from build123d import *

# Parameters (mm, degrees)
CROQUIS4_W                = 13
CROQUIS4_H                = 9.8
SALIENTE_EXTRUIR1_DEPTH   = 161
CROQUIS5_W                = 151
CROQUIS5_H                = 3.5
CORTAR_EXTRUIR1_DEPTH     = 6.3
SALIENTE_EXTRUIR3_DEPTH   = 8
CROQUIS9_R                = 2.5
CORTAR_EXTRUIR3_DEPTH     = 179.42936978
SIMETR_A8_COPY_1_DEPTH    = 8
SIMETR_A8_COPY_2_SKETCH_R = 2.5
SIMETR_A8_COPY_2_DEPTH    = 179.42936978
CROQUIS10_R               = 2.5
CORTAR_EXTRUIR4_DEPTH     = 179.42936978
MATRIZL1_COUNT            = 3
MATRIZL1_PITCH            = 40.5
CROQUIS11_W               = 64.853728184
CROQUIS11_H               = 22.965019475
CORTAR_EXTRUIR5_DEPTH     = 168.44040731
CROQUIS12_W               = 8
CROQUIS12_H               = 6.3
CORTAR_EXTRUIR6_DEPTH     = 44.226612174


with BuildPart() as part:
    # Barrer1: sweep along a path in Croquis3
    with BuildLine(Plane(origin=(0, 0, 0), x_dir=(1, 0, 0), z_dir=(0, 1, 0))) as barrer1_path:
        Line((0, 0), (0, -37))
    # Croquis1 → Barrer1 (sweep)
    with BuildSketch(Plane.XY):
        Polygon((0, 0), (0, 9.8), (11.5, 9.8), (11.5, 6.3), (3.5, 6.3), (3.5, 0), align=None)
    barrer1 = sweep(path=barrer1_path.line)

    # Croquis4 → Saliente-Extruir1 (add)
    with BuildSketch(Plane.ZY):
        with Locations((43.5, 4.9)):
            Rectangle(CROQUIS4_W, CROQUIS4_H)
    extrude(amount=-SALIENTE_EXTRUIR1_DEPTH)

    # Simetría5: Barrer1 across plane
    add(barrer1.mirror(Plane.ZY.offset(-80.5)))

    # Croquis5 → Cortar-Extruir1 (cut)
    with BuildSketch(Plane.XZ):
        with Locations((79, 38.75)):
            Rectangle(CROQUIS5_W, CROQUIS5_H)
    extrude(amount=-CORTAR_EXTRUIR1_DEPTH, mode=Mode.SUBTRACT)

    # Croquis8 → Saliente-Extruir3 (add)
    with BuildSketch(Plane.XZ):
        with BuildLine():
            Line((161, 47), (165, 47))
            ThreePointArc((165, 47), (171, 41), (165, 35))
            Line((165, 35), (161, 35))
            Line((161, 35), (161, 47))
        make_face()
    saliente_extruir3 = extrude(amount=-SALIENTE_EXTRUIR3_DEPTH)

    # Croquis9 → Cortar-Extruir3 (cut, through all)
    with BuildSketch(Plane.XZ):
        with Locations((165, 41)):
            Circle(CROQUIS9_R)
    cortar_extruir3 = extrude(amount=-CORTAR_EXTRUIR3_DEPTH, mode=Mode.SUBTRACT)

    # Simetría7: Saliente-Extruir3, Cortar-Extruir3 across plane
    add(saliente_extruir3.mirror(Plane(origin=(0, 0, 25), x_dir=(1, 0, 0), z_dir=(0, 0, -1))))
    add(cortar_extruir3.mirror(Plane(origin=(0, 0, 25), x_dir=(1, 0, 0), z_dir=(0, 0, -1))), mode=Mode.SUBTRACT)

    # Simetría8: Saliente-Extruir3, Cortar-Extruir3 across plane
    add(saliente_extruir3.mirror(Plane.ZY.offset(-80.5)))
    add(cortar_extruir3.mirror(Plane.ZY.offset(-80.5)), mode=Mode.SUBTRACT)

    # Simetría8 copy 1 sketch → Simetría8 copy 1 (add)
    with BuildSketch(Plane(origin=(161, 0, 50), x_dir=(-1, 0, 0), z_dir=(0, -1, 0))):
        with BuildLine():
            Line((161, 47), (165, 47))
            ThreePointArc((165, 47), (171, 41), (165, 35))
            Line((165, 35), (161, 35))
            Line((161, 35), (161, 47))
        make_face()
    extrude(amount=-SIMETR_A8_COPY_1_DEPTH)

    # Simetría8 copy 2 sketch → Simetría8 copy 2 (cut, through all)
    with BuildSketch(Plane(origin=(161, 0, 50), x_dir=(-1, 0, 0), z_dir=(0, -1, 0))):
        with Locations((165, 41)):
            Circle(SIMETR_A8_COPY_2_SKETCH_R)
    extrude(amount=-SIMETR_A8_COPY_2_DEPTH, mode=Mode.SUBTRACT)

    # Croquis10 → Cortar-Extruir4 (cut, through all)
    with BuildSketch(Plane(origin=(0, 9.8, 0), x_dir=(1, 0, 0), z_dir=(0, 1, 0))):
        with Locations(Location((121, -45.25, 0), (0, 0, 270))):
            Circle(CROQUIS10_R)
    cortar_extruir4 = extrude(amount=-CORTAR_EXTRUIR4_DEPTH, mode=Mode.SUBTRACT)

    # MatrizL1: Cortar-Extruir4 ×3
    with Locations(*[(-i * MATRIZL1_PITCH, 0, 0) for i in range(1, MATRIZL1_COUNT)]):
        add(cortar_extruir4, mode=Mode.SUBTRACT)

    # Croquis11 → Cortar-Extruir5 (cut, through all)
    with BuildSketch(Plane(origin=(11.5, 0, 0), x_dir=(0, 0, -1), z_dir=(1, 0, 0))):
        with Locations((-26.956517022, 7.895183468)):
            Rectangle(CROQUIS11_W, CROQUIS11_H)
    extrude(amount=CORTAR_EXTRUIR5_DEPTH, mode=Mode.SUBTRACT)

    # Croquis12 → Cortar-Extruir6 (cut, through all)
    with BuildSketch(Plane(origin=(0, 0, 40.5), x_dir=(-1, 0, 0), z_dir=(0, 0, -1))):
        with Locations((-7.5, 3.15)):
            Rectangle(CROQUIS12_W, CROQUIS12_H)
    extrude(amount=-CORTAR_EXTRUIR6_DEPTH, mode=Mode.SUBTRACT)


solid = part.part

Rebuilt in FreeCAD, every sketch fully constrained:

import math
import FreeCAD as App
import Part
import Sketcher

V = App.Vector


def add_polygon(sketch, points):
    """Adds a closed chain of lines whose ends are joined by coincident constraints."""
    first, n = sketch.GeometryCount, len(points)
    for a, b in zip(points, points[1:] + points[:1]):
        sketch.addGeometry(Part.LineSegment(App.Vector(*a, 0), App.Vector(*b, 0)), False)
    for i in range(n):
        sketch.addConstraint(Sketcher.Constraint("Coincident", first + i, 2, first + (i + 1) % n, 1))

doc = App.newDocument("Part")
body = doc.addObject("PartDesign::Body", "Body")

# Sketch on XY plane
sketch1 = doc.addObject("Sketcher::SketchObject", "Sketch")
body.addObject(sketch1)
sketch1.AttachmentSupport = (doc.XY_Plane, [""])
sketch1.MapMode = "FlatFace"
add_polygon(sketch1, [(0, 9.8), (0, 0), (3.5, 0), (3.5, 6.3), (11.5, 6.3), (11.5, 9.8)])  # lines 0-5
sketch1.addConstraint([
    Sketcher.Constraint("Vertical", 0),
    Sketcher.Constraint("Horizontal", 1),
    Sketcher.Constraint("Vertical", 2),
    Sketcher.Constraint("Horizontal", 3),
    Sketcher.Constraint("Vertical", 4),
    Sketcher.Constraint("Horizontal", 5),
    Sketcher.Constraint("Coincident", 0, 2, -1, 1),
    Sketcher.Constraint("Equal", 1, 4),
    Sketcher.Constraint("DistanceX", 3, 1, 3, 2, 8.0),
    Sketcher.Constraint("DistanceX", 1, 1, 1, 2, 3.5),
    Sketcher.Constraint("DistanceY", 0, 2, 0, 1, 9.8),
])

# Sketch on XZ plane
sketch2 = doc.addObject("Sketcher::SketchObject", "Sketch001")
body.addObject(sketch2)
sketch2.AttachmentSupport = (doc.XZ_Plane, [""])
sketch2.MapMode = "FlatFace"
sketch2.addGeometry(Part.LineSegment(V(0, 0, 0), V(0, 37, 0)), False)
sketch2.addConstraint([
    Sketcher.Constraint("Vertical", 0),
    Sketcher.Constraint("Coincident", 0, 1, -1, 1),
    Sketcher.Constraint("DistanceY", 0, 1, 0, 2, 37.0),
])
doc.recompute()

additivepipe = doc.addObject("PartDesign::AdditivePipe", "AdditivePipe")
body.addObject(additivepipe)
additivepipe.Profile = sketch1
additivepipe.Spine = (sketch2, ["Edge1"])

# Sketch on YZ plane
sketch3 = doc.addObject("Sketcher::SketchObject", "Sketch002")
body.addObject(sketch3)
sketch3.AttachmentSupport = (doc.YZ_Plane, [""])
sketch3.MapMode = "FlatFace"
add_polygon(sketch3, [(10, 37), (0, 37), (0, 50), (10, 50)])  # lines 0-3
sketch3.addConstraint([
    Sketcher.Constraint("Horizontal", 0),
    Sketcher.Constraint("Vertical", 1),
    Sketcher.Constraint("Horizontal", 2),
    Sketcher.Constraint("Vertical", 3),
    Sketcher.Constraint("PointOnObject", 0, 2, -2),
    Sketcher.Constraint("DistanceY", 1, 1, 1, 2, 13.0),
    Sketcher.Constraint("DistanceX", 0, 2, 0, 1, 9.8),
    Sketcher.Constraint("DistanceY", -1, 1, 0, 2, 37.0),
])
pad1 = doc.addObject("PartDesign::Pad", "Pad")
body.addObject(pad1)
pad1.Profile = sketch3
pad1.Length = 161
doc.recompute()

datumplane = doc.addObject("PartDesign::Plane", "DatumPlane")
body.addObject(datumplane)
datumplane.AttachmentSupport = (doc.YZ_Plane, [""])
datumplane.MapMode = "FlatFace"
datumplane.AttachmentOffset = App.Placement(V(0, 0, 80.5), App.Rotation())
mirrored = doc.addObject("PartDesign::Mirrored", "Mirrored")
body.addObject(mirrored)
mirrored.Originals = [additivepipe]
mirrored.MirrorPlane = (datumplane, [""])
body.Tip = mirrored

# Sketch on XZ plane
sketch4 = doc.addObject("Sketcher::SketchObject", "Sketch003")
body.addObject(sketch4)
sketch4.AttachmentSupport = (doc.XZ_Plane, [""])
sketch4.MapMode = "FlatFace"
add_polygon(sketch4, [(3.5, 40.5), (3.5, 37), (154.5, 37), (154.5, 40.5)])  # lines 0-3
sketch4.addConstraint([
    Sketcher.Constraint("Vertical", 0),
    Sketcher.Constraint("Horizontal", 1),
    Sketcher.Constraint("Vertical", 2),
    Sketcher.Constraint("Horizontal", 3),
    Sketcher.Constraint("DistanceX", 1, 1, 1, 2, 151.0),
    Sketcher.Constraint("DistanceY", 0, 2, 0, 1, 3.5),
    Sketcher.Constraint("DistanceY", -1, 1, 0, 2, 37.0),
    Sketcher.Constraint("DistanceX", -1, 1, 0, 2, 3.5),
])
pocket1 = doc.addObject("PartDesign::Pocket", "Pocket")
body.addObject(pocket1)
pocket1.Profile = sketch4
pocket1.Length = 6.3

# Sketch on XZ plane
sketch5 = doc.addObject("Sketcher::SketchObject", "Sketch004")
body.addObject(sketch5)
sketch5.AttachmentSupport = (doc.XZ_Plane, [""])
sketch5.MapMode = "FlatFace"
sketch5.addGeometry([
    Part.LineSegment(V(165, 47, 0), V(161, 47, 0)),
    Part.LineSegment(V(161, 47, 0), V(161, 35, 0)),
    Part.LineSegment(V(161, 35, 0), V(165, 35, 0)),
    Part.ArcOfCircle(Part.Circle(V(165, 41, 0), V(0, 0, 1), 6), math.radians(-90), math.radians(90)),
], False)
sketch5.addConstraint([
    Sketcher.Constraint("Coincident", 0, 2, 1, 1),
    Sketcher.Constraint("Coincident", 1, 2, 2, 1),
    Sketcher.Constraint("Tangent", 2, 2, 3, 1),
    Sketcher.Constraint("Tangent", 3, 2, 0, 1),
    Sketcher.Constraint("Horizontal", 0),
    Sketcher.Constraint("Vertical", 1),
    Sketcher.Constraint("Horizontal", 2),
    Sketcher.Constraint("Radius", 3, 6.0),
    Sketcher.Constraint("DistanceX", 0, 2, 0, 1, 4.0),
    Sketcher.Constraint("DistanceX", -1, 1, 3, 3, 165.0),
    Sketcher.Constraint("DistanceY", -1, 1, 3, 3, 41.0),
])
pad2 = doc.addObject("PartDesign::Pad", "Pad001")
body.addObject(pad2)
pad2.Profile = sketch5
pad2.Length = 8
pad2.Reversed = True

# Sketch on XZ plane
sketch6 = doc.addObject("Sketcher::SketchObject", "Sketch005")
body.addObject(sketch6)
sketch6.AttachmentSupport = (doc.XZ_Plane, [""])
sketch6.MapMode = "FlatFace"
sketch6.addGeometry(Part.Circle(V(165, 41, 0), V(0, 0, 1), 2.5), False)
sketch6.addConstraint([
    Sketcher.Constraint("Diameter", 0, 5.0),
    Sketcher.Constraint("DistanceX", -1, 1, 0, 3, 165.0),
    Sketcher.Constraint("DistanceY", -1, 1, 0, 3, 41.0),
])
pocket2 = doc.addObject("PartDesign::Pocket", "Pocket001")
body.addObject(pocket2)
pocket2.Profile = sketch6
pocket2.Type = "ThroughAll"
doc.recompute()

datumplane2 = doc.addObject("PartDesign::Plane", "DatumPlane001")
body.addObject(datumplane2)
datumplane2.AttachmentSupport = (doc.XY_Plane, [""])
datumplane2.MapMode = "FlatFace"
datumplane2.AttachmentOffset = App.Placement(V(0, 0, 25), App.Rotation())
mirrored2 = doc.addObject("PartDesign::Mirrored", "Mirrored001")
body.addObject(mirrored2)
mirrored2.Originals = [pad2, pocket2]
mirrored2.MirrorPlane = (datumplane2, [""])
body.Tip = mirrored2
doc.recompute()

datumplane3 = doc.addObject("PartDesign::Plane", "DatumPlane002")
body.addObject(datumplane3)
datumplane3.AttachmentSupport = (doc.YZ_Plane, [""])
datumplane3.MapMode = "FlatFace"
datumplane3.AttachmentOffset = App.Placement(V(0, 0, 80.5), App.Rotation())
mirrored3 = doc.addObject("PartDesign::Mirrored", "Mirrored002")
body.addObject(mirrored3)
mirrored3.Originals = [pad2, pocket2]
mirrored3.MirrorPlane = (datumplane3, [""])
body.Tip = mirrored3

# Sketch on XZ plane
sketch7 = doc.addObject("Sketcher::SketchObject", "Sketch006")
body.addObject(sketch7)
sketch7.AttachmentSupport = (doc.XZ_Plane, [""])
sketch7.MapMode = "FlatFace"
sketch7.addGeometry([
    Part.LineSegment(V(-4, 3, 0), V(0, 3, 0)),
    Part.LineSegment(V(0, 3, 0), V(0, 15, 0)),
    Part.LineSegment(V(0, 15, 0), V(-4, 15, 0)),
    Part.ArcOfCircle(Part.Circle(V(-4, 9, 0), V(0, 0, 1), 6), math.radians(90), math.radians(270)),
], False)
sketch7.addConstraint([
    Sketcher.Constraint("Coincident", 0, 2, 1, 1),
    Sketcher.Constraint("Coincident", 1, 2, 2, 1),
    Sketcher.Constraint("Tangent", 2, 2, 3, 1),
    Sketcher.Constraint("Tangent", 3, 2, 0, 1),
    Sketcher.Constraint("Horizontal", 0),
    Sketcher.Constraint("Vertical", 1),
    Sketcher.Constraint("Horizontal", 2),
    Sketcher.Constraint("PointOnObject", 0, 2, -2),
    Sketcher.Constraint("Radius", 3, 6.0),
    Sketcher.Constraint("DistanceX", 0, 1, 0, 2, 4.0),
    Sketcher.Constraint("DistanceY", -1, 1, 3, 3, 9.0),
])
pad3 = doc.addObject("PartDesign::Pad", "Pad002")
body.addObject(pad3)
pad3.Profile = sketch7
pad3.Length = 8
pad3.Reversed = True

# Sketch on XZ plane
sketch8 = doc.addObject("Sketcher::SketchObject", "Sketch007")
body.addObject(sketch8)
sketch8.AttachmentSupport = (doc.XZ_Plane, [""])
sketch8.MapMode = "FlatFace"
sketch8.addGeometry(Part.Circle(V(-4, 9, 0), V(0, 0, 1), 2.5), False)
sketch8.addConstraint([
    Sketcher.Constraint("Diameter", 0, 5.0),
    Sketcher.Constraint("DistanceX", 0, 3, -1, 1, 4.0),
    Sketcher.Constraint("DistanceY", -1, 1, 0, 3, 9.0),
])
pocket3 = doc.addObject("PartDesign::Pocket", "Pocket002")
body.addObject(pocket3)
pocket3.Profile = sketch8
pocket3.Type = "ThroughAll"

# Sketch on XZ plane
sketch9 = doc.addObject("Sketcher::SketchObject", "Sketch008")
body.addObject(sketch9)
sketch9.AttachmentSupport = (doc.XZ_Plane, [""])
sketch9.MapMode = "FlatFace"
sketch9.AttachmentOffset = App.Placement(V(0, 0, -9.8), App.Rotation())
sketch9.addGeometry(Part.Circle(V(121, 45.2, 0), V(0, 0, 1), 2.5), False)
sketch9.addConstraint([
    Sketcher.Constraint("Diameter", 0, 5.0),
    Sketcher.Constraint("DistanceX", -1, 1, 0, 3, 121.0),
    Sketcher.Constraint("DistanceY", -1, 1, 0, 3, 45.25),
])
pocket4 = doc.addObject("PartDesign::Pocket", "Pocket003")
body.addObject(pocket4)
pocket4.Profile = sketch9
pocket4.Type = "ThroughAll"
pocket4.Reversed = True
doc.recompute()

linearpattern = doc.addObject("PartDesign::LinearPattern", "LinearPattern")
body.addObject(linearpattern)
linearpattern.Originals = [pocket4]
linearpattern.Direction = (doc.X_Axis, [""])
linearpattern.Mode = "offset"
linearpattern.Offset = 40.5
linearpattern.Occurrences = 3
linearpattern.Reversed = True
body.Tip = linearpattern

# Sketch on YZ plane
sketch10 = doc.addObject("Sketcher::SketchObject", "Sketch009")
body.addObject(sketch10)
sketch10.AttachmentSupport = (doc.YZ_Plane, [""])
sketch10.MapMode = "FlatFace"
sketch10.AttachmentOffset = App.Placement(V(0, 0, 11.5), App.Rotation())
add_polygon(sketch10, [(19, 59), (-4, 59), (-4, -5), (19, -5)])  # lines 0-3
sketch10.addConstraint([
    Sketcher.Constraint("Horizontal", 0),
    Sketcher.Constraint("Vertical", 1),
    Sketcher.Constraint("Horizontal", 2),
    Sketcher.Constraint("Vertical", 3),
    Sketcher.Constraint("DistanceX", 0, 2, 0, 1, 22.965019),
    Sketcher.Constraint("DistanceY", 1, 2, 1, 1, 64.853728),
    Sketcher.Constraint("DistanceY", -1, 1, 0, 2, 59.383381),
    Sketcher.Constraint("DistanceX", 0, 2, -1, 1, 3.587326),
])
pocket5 = doc.addObject("PartDesign::Pocket", "Pocket004")
body.addObject(pocket5)
pocket5.Profile = sketch10
pocket5.Type = "ThroughAll"
pocket5.Reversed = True

# Sketch on XY plane
sketch11 = doc.addObject("Sketcher::SketchObject", "Sketch010")
body.addObject(sketch11)
sketch11.AttachmentSupport = (doc.XY_Plane, [""])
sketch11.MapMode = "FlatFace"
sketch11.AttachmentOffset = App.Placement(V(0, 0, 40.5), App.Rotation())
add_polygon(sketch11, [(12, 6), (12, 0), (4, 0), (4, 6)])  # lines 0-3
sketch11.addConstraint([
    Sketcher.Constraint("Vertical", 0),
    Sketcher.Constraint("Horizontal", 1),
    Sketcher.Constraint("Vertical", 2),
    Sketcher.Constraint("Horizontal", 3),
    Sketcher.Constraint("PointOnObject", 0, 2, -1),
    Sketcher.Constraint("DistanceX", 1, 2, 1, 1, 8.0),
    Sketcher.Constraint("DistanceY", 0, 2, 0, 1, 6.3),
    Sketcher.Constraint("DistanceX", -1, 1, 0, 2, 11.5),
])
pocket6 = doc.addObject("PartDesign::Pocket", "Pocket005")
body.addObject(pocket6)
pocket6.Profile = sketch11
pocket6.Type = "ThroughAll"
pocket6.Reversed = True

doc.recompute()
